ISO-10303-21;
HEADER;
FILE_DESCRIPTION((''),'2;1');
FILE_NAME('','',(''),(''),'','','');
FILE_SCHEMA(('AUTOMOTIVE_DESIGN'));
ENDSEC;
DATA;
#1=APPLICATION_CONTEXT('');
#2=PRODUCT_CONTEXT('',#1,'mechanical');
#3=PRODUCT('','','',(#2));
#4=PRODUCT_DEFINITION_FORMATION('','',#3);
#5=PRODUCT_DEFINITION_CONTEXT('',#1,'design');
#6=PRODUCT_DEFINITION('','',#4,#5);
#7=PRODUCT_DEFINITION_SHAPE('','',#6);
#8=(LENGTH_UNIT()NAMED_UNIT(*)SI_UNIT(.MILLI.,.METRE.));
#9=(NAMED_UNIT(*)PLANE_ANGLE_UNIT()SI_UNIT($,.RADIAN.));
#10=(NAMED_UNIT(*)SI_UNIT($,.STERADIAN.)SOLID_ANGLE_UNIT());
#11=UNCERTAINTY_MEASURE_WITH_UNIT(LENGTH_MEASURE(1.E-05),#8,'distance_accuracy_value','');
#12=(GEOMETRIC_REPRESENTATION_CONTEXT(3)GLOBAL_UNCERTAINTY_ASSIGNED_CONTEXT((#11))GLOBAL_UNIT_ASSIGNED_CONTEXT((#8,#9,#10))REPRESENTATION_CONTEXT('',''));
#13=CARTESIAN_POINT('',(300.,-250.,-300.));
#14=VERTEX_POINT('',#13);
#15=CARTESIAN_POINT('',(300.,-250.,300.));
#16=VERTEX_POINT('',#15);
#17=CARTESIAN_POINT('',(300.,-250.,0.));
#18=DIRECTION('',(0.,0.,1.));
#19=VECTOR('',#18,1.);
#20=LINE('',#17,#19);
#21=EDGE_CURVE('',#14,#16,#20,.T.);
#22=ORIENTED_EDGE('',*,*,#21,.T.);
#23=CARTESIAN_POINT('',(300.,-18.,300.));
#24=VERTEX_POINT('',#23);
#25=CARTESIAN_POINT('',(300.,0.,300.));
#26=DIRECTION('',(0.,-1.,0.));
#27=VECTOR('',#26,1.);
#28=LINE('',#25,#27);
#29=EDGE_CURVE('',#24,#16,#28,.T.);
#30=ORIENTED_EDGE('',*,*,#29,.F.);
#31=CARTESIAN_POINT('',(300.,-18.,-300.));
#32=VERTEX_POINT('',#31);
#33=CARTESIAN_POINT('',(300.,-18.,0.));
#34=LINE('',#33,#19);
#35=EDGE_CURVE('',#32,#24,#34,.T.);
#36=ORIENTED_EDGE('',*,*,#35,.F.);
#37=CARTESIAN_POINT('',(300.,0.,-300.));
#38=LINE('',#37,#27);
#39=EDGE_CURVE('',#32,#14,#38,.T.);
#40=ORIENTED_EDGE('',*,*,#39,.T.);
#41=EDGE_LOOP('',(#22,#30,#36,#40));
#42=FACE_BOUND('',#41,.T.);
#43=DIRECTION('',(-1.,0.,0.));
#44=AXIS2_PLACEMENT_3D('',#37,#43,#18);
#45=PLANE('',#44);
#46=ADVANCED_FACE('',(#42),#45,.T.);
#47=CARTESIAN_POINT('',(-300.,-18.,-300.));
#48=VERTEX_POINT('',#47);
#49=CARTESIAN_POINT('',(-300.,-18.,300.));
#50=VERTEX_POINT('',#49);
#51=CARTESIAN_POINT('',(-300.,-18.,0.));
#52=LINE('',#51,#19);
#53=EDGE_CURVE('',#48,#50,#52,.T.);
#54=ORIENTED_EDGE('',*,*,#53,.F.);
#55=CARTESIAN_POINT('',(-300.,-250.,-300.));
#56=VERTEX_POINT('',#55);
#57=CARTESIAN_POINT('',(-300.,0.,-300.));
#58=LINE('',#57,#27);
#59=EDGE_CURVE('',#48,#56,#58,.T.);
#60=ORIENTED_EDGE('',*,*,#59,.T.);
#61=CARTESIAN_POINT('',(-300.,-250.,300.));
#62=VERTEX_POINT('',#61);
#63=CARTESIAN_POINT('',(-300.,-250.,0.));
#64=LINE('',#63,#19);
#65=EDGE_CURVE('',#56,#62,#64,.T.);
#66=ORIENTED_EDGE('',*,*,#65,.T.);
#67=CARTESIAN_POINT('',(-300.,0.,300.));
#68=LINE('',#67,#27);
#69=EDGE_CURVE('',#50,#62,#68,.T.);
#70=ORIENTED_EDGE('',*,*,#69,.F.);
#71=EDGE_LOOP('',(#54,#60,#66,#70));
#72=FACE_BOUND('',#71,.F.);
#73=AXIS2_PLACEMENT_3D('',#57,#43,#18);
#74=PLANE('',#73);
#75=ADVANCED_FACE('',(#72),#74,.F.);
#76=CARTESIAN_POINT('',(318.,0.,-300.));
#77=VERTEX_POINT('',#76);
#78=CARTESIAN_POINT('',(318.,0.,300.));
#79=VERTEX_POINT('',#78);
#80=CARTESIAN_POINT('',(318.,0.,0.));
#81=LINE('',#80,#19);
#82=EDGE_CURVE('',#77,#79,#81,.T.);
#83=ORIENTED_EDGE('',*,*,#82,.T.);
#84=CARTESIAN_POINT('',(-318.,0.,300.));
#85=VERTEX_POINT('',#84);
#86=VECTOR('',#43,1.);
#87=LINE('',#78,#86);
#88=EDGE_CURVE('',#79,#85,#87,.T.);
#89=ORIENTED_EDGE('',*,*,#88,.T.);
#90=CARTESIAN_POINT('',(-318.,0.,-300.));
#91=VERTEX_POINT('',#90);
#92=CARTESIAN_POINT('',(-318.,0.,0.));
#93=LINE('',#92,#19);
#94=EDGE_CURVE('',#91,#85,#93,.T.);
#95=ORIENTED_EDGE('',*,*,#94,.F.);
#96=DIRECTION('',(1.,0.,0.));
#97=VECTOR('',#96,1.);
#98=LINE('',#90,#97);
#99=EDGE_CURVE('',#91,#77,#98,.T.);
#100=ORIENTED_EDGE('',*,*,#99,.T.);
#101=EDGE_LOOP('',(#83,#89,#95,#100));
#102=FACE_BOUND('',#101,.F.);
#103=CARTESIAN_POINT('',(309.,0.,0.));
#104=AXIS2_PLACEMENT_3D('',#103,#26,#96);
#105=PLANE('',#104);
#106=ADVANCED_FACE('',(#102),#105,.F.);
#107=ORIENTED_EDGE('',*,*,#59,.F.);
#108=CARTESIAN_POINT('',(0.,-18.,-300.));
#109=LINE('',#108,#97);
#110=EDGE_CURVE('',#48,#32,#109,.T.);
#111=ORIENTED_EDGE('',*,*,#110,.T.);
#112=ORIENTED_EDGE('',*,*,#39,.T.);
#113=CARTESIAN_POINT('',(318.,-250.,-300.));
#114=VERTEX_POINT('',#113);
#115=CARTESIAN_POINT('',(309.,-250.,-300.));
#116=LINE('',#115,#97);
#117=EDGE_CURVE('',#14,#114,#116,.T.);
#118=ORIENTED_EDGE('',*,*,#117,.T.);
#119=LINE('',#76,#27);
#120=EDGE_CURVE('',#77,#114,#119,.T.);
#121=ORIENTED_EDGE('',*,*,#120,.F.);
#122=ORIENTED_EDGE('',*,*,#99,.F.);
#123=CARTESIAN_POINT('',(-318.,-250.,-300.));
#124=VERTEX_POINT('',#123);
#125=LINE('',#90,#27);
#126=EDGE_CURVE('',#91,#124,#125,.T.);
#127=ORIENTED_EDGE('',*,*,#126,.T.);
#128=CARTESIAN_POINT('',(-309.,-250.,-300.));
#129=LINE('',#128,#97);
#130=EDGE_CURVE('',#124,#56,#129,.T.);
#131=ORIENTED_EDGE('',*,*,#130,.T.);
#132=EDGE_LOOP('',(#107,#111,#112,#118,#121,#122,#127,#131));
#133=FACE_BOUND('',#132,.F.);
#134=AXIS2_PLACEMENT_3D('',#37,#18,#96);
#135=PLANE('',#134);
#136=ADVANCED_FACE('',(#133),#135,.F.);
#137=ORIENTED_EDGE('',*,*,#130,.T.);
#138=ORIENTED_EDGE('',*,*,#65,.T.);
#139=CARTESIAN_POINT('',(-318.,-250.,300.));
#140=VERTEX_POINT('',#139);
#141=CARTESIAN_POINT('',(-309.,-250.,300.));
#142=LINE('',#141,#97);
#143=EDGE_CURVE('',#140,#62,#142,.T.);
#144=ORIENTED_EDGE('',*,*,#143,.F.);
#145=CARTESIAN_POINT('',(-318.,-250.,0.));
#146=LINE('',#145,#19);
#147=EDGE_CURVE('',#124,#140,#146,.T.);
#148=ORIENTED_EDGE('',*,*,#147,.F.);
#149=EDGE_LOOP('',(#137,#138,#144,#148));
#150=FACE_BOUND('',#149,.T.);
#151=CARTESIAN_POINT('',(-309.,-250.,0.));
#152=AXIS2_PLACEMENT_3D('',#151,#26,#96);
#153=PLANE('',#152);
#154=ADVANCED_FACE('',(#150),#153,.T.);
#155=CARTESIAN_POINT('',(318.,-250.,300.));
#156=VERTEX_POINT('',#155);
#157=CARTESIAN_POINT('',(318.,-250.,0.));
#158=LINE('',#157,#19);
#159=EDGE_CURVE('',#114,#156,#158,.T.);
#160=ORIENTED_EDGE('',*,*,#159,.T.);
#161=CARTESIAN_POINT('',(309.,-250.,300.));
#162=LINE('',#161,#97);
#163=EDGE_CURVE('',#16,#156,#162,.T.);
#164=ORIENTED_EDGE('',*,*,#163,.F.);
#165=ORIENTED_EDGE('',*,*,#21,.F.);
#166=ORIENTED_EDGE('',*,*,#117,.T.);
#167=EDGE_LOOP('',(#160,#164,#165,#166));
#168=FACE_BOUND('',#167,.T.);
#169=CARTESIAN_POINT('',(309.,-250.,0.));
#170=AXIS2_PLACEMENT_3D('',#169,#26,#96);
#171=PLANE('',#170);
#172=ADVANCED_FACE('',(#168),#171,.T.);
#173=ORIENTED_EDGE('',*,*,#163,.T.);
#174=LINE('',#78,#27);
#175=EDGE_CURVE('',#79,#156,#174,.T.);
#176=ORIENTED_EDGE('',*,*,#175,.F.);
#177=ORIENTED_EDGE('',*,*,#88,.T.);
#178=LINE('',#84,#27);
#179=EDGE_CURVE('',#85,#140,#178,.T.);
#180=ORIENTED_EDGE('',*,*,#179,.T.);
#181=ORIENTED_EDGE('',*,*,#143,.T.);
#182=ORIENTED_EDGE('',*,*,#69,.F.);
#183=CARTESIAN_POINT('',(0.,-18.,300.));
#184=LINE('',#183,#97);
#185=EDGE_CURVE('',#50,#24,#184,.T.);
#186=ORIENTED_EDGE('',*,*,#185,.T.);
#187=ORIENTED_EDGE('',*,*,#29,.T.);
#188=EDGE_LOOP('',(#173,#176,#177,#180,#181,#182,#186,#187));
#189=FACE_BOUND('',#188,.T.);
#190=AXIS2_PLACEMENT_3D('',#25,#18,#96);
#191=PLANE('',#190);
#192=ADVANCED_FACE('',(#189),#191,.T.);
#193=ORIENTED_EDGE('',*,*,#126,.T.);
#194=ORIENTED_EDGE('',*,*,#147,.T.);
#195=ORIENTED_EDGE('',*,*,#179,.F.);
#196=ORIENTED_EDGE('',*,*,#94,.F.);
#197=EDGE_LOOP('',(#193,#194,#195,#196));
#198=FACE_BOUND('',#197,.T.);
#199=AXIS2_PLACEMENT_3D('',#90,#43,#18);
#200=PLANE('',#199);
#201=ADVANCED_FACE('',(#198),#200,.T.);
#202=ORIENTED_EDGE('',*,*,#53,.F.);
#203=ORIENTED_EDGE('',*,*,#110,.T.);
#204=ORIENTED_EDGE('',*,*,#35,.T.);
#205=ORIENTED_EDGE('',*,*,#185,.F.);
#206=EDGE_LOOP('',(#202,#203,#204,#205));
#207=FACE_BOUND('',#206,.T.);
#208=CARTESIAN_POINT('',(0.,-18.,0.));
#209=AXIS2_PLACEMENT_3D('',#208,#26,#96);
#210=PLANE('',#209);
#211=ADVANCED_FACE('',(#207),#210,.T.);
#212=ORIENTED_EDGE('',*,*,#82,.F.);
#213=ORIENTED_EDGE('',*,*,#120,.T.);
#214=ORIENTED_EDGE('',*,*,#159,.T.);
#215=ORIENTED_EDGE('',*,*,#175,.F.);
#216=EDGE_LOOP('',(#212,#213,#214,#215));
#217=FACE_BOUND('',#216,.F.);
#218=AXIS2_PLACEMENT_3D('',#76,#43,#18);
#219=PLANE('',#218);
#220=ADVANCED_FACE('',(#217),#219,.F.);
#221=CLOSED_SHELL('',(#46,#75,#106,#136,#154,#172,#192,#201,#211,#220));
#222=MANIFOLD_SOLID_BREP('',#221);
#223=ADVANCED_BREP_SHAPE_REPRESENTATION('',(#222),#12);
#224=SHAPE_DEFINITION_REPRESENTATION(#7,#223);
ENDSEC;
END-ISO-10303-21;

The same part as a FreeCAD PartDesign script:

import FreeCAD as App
import Part
import Sketcher

V = App.Vector
Q = App.Units.Quantity


def add_polygon(sketch, points):
    """Adds a closed chain of lines whose ends are joined by coincident constraints."""
    first, n = sketch.GeometryCount, len(points)
    for a, b in zip(points, points[1:] + points[:1]):
        sketch.addGeometry(Part.LineSegment(App.Vector(*a, 0), App.Vector(*b, 0)), False)
    for i in range(n):
        sketch.addConstraint(Sketcher.Constraint("Coincident", first + i, 2, first + (i + 1) % n, 1))

doc = App.newDocument("Part")
body = doc.addObject("PartDesign::Body", "Body")

sketch1 = body.newObject("Sketcher::SketchObject", "Sketch")
sketch1.AttachmentSupport = (doc.getObject("XZ_Plane"), [""])
sketch1.MapMode = "FlatFace"
add_polygon(sketch1, [(-300, 300), (-300, -300), (300, -300), (300, 300)])
sketch1.addConstraint(Sketcher.Constraint("Vertical", 0))
sketch1.addConstraint(Sketcher.Constraint("Horizontal", 1))
sketch1.addConstraint(Sketcher.Constraint("Vertical", 2))
sketch1.addConstraint(Sketcher.Constraint("Horizontal", 3))
sketch1.addConstraint(Sketcher.Constraint("Symmetric", 0, 2, 2, 2, -1, 1))
sketch1.addConstraint(Sketcher.Constraint("Equal", 3, 0))
sketch1.addConstraint(Sketcher.Constraint("DistanceX", 1, 1, 1, 2, Q("600 mm")))
pad1 = body.newObject("PartDesign::Pad", "Pad")
pad1.Profile = sketch1
pad1.Length = 18

sketch2 = body.newObject("Sketcher::SketchObject", "Sketch001")
sketch2.AttachmentSupport = (doc.getObject("XZ_Plane"), [""])
sketch2.MapMode = "FlatFace"
add_polygon(sketch2, [(-318, 300), (-318, -300), (-300, -300), (-300, 300)])
sketch2.addConstraint(Sketcher.Constraint("Vertical", 0))
sketch2.addConstraint(Sketcher.Constraint("Horizontal", 1))
sketch2.addConstraint(Sketcher.Constraint("Vertical", 2))
sketch2.addConstraint(Sketcher.Constraint("Horizontal", 3))
sketch2.addConstraint(Sketcher.Constraint("DistanceX", 1, 1, 1, 2, Q("18 mm")))
sketch2.addConstraint(Sketcher.Constraint("DistanceY", 0, 2, 0, 1, Q("600 mm")))
sketch2.addConstraint(Sketcher.Constraint("DistanceX", 0, 2, -1, 1, Q("318 mm")))
sketch2.addConstraint(Sketcher.Constraint("DistanceY", 0, 2, -1, 1, Q("300 mm")))
pad2 = body.newObject("PartDesign::Pad", "Pad001")
pad2.Profile = sketch2
pad2.Length = 250

sketch3 = body.newObject("Sketcher::SketchObject", "Sketch002")
sketch3.AttachmentSupport = (doc.getObject("XZ_Plane"), [""])
sketch3.MapMode = "FlatFace"
add_polygon(sketch3, [(300, 300), (300, -300), (318, -300), (318, 300)])
sketch3.addConstraint(Sketcher.Constraint("Vertical", 0))
sketch3.addConstraint(Sketcher.Constraint("Horizontal", 1))
sketch3.addConstraint(Sketcher.Constraint("Vertical", 2))
sketch3.addConstraint(Sketcher.Constraint("Horizontal", 3))
sketch3.addConstraint(Sketcher.Constraint("DistanceX", 1, 1, 1, 2, Q("18 mm")))
sketch3.addConstraint(Sketcher.Constraint("DistanceY", 0, 2, 0, 1, Q("600 mm")))
sketch3.addConstraint(Sketcher.Constraint("DistanceX", -1, 1, 0, 2, Q("300 mm")))
sketch3.addConstraint(Sketcher.Constraint("DistanceY", 0, 2, -1, 1, Q("300 mm")))
pad3 = body.newObject("PartDesign::Pad", "Pad002")
pad3.Profile = sketch3
pad3.Length = 250

doc.recompute()
